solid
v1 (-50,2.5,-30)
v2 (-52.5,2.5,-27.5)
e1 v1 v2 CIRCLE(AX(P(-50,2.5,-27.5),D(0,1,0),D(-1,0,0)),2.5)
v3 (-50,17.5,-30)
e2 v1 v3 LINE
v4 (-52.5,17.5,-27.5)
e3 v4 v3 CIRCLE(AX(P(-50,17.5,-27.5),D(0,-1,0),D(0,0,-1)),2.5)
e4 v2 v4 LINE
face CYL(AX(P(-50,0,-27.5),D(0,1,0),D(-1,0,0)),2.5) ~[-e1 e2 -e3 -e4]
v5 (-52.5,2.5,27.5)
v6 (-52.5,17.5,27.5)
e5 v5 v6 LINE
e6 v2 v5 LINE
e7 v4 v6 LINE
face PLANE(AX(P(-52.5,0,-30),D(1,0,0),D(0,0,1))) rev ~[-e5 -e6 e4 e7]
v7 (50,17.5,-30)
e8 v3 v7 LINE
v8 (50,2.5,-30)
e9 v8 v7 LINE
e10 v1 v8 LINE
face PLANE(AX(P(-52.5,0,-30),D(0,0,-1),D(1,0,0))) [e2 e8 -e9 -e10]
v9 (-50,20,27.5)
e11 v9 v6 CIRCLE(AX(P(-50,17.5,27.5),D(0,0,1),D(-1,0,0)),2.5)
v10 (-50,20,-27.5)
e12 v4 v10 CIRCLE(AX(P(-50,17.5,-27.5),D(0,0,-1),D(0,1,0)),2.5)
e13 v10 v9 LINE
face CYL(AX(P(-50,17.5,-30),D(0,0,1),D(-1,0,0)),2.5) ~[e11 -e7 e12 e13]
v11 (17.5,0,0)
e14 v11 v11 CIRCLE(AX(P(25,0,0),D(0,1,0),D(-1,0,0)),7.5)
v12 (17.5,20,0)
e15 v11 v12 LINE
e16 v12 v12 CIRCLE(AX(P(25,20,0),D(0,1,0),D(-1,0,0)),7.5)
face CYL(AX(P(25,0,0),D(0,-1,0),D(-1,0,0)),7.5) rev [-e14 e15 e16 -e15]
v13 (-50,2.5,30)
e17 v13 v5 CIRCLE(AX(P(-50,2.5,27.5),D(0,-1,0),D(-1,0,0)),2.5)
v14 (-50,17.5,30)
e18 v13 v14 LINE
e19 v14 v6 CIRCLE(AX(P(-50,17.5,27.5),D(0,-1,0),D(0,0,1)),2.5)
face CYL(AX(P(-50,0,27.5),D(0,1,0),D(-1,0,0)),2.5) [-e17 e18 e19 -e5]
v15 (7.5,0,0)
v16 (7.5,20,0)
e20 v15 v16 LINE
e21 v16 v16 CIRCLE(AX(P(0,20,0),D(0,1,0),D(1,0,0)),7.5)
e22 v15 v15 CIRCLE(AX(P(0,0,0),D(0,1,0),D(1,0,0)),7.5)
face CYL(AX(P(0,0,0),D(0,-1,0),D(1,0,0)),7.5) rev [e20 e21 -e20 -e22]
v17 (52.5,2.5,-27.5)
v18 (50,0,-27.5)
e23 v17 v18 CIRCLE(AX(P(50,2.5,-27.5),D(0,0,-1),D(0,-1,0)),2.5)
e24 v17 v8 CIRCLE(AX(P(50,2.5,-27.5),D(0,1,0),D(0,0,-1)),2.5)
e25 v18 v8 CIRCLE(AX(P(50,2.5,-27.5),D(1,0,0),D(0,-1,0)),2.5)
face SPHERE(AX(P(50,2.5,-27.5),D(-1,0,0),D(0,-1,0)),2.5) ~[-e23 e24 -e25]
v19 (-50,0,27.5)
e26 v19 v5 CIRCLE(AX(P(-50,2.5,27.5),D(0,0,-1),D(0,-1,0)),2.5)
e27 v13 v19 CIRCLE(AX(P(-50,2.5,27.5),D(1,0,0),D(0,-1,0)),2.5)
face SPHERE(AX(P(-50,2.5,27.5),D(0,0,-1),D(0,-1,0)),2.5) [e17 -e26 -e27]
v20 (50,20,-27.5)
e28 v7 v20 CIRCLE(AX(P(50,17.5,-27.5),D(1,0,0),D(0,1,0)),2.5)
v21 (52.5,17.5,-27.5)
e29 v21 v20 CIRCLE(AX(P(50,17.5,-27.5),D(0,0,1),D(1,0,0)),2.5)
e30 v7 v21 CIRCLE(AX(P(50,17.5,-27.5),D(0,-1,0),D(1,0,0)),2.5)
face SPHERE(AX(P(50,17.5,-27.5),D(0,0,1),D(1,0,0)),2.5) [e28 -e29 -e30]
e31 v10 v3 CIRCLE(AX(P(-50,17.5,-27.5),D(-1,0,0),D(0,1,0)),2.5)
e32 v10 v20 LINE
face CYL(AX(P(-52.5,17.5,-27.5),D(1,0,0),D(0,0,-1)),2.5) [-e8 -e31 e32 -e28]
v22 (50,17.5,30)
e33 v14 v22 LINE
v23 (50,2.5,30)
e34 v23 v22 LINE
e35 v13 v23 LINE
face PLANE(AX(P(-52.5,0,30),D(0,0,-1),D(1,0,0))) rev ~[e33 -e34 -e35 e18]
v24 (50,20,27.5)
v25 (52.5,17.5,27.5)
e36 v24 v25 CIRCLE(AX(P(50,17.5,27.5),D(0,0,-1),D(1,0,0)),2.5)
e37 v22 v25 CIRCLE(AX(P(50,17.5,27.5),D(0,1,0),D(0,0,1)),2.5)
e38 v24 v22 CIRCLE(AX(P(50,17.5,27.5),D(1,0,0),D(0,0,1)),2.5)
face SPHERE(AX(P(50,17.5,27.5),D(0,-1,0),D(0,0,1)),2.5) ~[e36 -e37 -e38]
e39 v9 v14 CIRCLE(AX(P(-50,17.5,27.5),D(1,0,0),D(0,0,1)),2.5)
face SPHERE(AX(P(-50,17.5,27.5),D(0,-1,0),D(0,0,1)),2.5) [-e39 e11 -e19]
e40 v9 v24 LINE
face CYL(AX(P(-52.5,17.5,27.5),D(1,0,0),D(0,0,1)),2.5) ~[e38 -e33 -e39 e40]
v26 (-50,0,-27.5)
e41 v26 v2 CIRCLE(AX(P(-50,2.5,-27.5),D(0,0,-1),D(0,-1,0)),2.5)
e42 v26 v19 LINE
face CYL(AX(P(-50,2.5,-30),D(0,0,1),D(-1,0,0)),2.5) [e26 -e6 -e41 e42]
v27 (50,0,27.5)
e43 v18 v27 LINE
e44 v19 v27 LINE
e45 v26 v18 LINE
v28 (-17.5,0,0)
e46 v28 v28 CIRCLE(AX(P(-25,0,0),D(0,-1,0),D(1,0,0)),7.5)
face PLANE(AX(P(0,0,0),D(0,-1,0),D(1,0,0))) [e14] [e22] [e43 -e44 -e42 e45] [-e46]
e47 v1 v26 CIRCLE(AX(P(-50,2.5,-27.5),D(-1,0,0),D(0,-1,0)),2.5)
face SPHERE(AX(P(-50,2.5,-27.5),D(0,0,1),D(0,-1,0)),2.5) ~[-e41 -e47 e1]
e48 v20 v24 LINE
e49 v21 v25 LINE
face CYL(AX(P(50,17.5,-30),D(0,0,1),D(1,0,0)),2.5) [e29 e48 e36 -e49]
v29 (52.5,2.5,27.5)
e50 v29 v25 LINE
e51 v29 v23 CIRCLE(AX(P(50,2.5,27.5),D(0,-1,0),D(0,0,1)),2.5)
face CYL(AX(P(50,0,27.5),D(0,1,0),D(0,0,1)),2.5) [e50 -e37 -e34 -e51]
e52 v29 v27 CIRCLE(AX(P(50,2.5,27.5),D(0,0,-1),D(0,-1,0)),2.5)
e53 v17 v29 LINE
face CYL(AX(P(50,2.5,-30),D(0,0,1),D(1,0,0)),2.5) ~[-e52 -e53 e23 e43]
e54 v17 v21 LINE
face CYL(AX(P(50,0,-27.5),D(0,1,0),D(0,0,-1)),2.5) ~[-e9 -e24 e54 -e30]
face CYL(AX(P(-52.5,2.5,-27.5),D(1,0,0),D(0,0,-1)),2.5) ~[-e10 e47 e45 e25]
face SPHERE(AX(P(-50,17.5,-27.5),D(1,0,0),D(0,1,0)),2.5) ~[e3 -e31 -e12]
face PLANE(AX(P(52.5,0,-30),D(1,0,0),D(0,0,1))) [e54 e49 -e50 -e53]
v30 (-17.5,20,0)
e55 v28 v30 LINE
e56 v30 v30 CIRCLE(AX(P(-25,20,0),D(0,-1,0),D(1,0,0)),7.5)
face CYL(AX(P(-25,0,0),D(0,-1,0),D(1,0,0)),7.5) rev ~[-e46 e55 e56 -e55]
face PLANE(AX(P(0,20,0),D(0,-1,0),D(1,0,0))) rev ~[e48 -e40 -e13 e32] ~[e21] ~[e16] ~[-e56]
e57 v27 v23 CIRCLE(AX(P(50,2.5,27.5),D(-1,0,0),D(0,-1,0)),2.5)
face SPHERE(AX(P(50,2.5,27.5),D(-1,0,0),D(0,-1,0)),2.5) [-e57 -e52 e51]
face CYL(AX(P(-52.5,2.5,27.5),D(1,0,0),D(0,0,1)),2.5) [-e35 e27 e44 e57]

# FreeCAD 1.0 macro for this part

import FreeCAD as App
import Part
import Sketcher
from FreeCAD import Vector
Q = App.Units.Quantity


def edges_at(feature, points):
    """Names of the edges that pass closest to the given points."""
    edges = feature.Shape.Edges
    near = lambda p: min(range(len(edges)), key=lambda i: edges[i].distToShape(Part.Vertex(*p))[0])
    return sorted({f"Edge{near(p) + 1}" for p in points})

doc = App.newDocument("Part")
params = doc.addObject("Spreadsheet::Sheet", "Params")
for row, (alias, value) in enumerate([
    ("sketch1_diameter", "15 mm"),
    ("sketch1_width", "105 mm"),
    ("sketch1_height", "60 mm"),
    ("pad1_length", "20 mm"),
    ("fillet_radius", "2.5 mm"),
], start=1):
    params.set(f"A{row}", alias)
    params.set(f"B{row}", "=" + value)
    params.setAlias(f"B{row}", alias)

body = doc.addObject("PartDesign::Body", "Body")

# Sketch on XZ plane
sketch1 = body.newObject("Sketcher::SketchObject", "Sketch")
sketch1.AttachmentSupport = (doc.getObject("XZ_Plane"), [""])
sketch1.MapMode = "FlatFace"
sketch1.addGeometry([
    Part.LineSegment(Vector(-52, 30, 0), Vector(-52, -30, 0)),  # 0
    Part.LineSegment(Vector(-52, -30, 0), Vector(52, -30, 0)),  # 1
    Part.LineSegment(Vector(52, -30, 0), Vector(52, 30, 0)),  # 2
    Part.LineSegment(Vector(52, 30, 0), Vector(-52, 30, 0)),  # 3
    Part.Circle(Vector(-25, 0, 0), Vector(0, 0, 1), 8),  # 4
    Part.Circle(Vector(0, 0, 0), Vector(0, 0, 1), 8),  # 5
    Part.Circle(Vector(25, 0, 0), Vector(0, 0, 1), 8),  # 6
], False)
sketch1.addConstraint([
    Sketcher.Constraint("Coincident", 0, 2, 1, 1),
    Sketcher.Constraint("Coincident", 1, 2, 2, 1),
    Sketcher.Constraint("Coincident", 2, 2, 3, 1),
    Sketcher.Constraint("Coincident", 3, 2, 0, 1),
    Sketcher.Constraint("Vertical", 0),
    Sketcher.Constraint("Horizontal", 1),
    Sketcher.Constraint("Vertical", 2),
    Sketcher.Constraint("Horizontal", 3),
    Sketcher.Constraint("Coincident", 5, 3, -1, 1),
    Sketcher.Constraint("Equal", 4, 5),
    Sketcher.Constraint("Equal", 5, 6),
    Sketcher.Constraint("Symmetric", 4, 3, 6, 3, -1, 1),
    Sketcher.Constraint("Symmetric", 0, 2, 2, 2, -1, 1),
    Sketcher.Constraint("PointOnObject", 4, 3, -1),
    Sketcher.Constraint("Diameter", 4, Q("15 mm")),
    Sketcher.Constraint("DistanceX", 1, 1, 1, 2, Q("105 mm")),
    Sketcher.Constraint("DistanceY", 0, 2, 0, 1, Q("60 mm")),
    Sketcher.Constraint("DistanceX", 4, 3, -1, 1, Q("25 mm")),
])
sketch1.setExpression("Constraints[14]", "Params.sketch1_diameter")
sketch1.setExpression("Constraints[15]", "Params.sketch1_width")
sketch1.setExpression("Constraints[16]", "Params.sketch1_height")
pad1 = body.newObject("PartDesign::Pad", "Pad")
pad1.Profile = sketch1
pad1.setExpression("Length", "Params.pad1_length")
pad1.Reversed = True
doc.recompute()

fillet = body.newObject("PartDesign::Fillet", "Fillet")
fillet.Base = (pad1, edges_at(pad1, [
    (-52.5, 0, 0),
    (0, 0, 30),
    (0, 0, -30),
    (52.5, 0, 0),
    (52.5, 10, 30),
    (-52.5, 10, 30),
    (0, 20, 30),
    (52.5, 20, 0),
    (52.5, 10, -30),
    (0, 20, -30),
    (-52.5, 20, 0),
    (-52.5, 10, -30),
]))
fillet.setExpression("Radius", "Params.fillet_radius")

doc.recompute()
